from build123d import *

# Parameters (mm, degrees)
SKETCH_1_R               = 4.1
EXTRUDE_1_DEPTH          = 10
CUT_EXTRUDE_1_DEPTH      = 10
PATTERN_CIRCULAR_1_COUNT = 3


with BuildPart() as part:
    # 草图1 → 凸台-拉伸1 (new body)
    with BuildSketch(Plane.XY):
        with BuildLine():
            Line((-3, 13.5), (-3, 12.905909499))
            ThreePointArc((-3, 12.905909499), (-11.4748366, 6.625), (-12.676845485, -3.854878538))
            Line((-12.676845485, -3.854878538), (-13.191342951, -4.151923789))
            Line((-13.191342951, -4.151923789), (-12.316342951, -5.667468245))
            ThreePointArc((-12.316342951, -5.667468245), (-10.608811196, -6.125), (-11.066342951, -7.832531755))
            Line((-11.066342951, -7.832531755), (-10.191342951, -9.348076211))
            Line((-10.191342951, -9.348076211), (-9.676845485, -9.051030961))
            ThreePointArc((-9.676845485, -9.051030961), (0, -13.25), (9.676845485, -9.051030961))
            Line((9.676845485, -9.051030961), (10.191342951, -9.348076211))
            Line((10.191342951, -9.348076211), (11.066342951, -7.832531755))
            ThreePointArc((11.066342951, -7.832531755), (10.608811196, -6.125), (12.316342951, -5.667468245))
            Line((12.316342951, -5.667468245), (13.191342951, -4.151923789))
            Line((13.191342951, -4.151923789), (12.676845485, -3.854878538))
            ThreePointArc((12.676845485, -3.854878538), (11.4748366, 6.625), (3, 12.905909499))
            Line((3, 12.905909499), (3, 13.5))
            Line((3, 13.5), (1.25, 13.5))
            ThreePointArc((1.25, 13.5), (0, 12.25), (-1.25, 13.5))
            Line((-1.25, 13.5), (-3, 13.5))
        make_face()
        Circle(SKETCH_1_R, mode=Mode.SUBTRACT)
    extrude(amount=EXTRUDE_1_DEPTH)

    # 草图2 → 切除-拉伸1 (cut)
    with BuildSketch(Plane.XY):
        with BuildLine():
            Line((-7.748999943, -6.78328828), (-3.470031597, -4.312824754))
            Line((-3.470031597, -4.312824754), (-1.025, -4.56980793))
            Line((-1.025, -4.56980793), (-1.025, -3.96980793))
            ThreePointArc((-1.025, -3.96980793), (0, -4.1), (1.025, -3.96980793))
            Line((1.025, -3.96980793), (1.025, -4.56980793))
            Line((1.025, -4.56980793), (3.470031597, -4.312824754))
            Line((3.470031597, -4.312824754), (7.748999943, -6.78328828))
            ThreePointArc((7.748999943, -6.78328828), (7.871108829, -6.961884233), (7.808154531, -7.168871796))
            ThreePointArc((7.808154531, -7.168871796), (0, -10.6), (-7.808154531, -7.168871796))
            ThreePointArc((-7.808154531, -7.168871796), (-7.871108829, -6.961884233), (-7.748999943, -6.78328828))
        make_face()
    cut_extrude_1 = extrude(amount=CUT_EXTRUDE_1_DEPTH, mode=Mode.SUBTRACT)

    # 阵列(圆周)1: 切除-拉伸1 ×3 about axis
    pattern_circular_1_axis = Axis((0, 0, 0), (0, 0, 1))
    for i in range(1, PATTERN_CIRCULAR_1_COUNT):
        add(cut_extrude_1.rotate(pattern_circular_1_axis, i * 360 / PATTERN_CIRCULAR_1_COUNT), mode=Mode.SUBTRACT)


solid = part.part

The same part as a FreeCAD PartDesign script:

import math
import FreeCAD as App
import Part
import Sketcher
Q = App.Units.Quantity

doc = App.newDocument("Part")
params = doc.addObject("Spreadsheet::Sheet", "Params")
for row, (alias, value) in enumerate([
    ("sketch1_diameter", "8.2 mm"),
    ("sketch1_radius", "13.25 mm"),
    ("sketch1_radius2", "1.25 mm"),
    ("sketch1_length", "1.75 mm"),
    ("pad1_length", "10 mm"),
    ("sketch2_radius", "10.6 mm"),
    ("sketch2_radius2", "4.1 mm"),
    ("sketch2_radius3", "0.25 mm"),
    ("sketch2_height", "0.6 mm"),
    ("pocket1_length", "10 mm"),
], start=1):
    params.set(f"A{row}", alias)
    params.set(f"B{row}", "=" + value)
    params.setAlias(f"B{row}", alias)

body = doc.addObject("PartDesign::Body", "Body")

# Sketch on XY plane
sketch1 = body.newObject("Sketcher::SketchObject", "Sketch")
sketch1.AttachmentSupport = (doc.getObject("XY_Plane"), [""])
sketch1.MapMode = "FlatFace"
sketch1.addGeometry([
    Part.LineSegment(App.Vector(-3, 13.5, 0), App.Vector(-3, 12.9, 0)),  # 0
    Part.ArcOfCircle(Part.Circle(App.Vector(0, 0, 0), App.Vector(0, 0, 1), 13.2), math.radians(103), math.radians(197)),  # 1
    Part.LineSegment(App.Vector(-12.7, -3.9, 0), App.Vector(-13.2, -4.2, 0)),  # 2
    Part.LineSegment(App.Vector(-13.2, -4.2, 0), App.Vector(-12.3, -5.7, 0)),  # 3
    Part.ArcOfCircle(Part.Circle(App.Vector(-11.7, -6.8, 0), App.Vector(0, 0, 1), 1.2), math.radians(-60), math.radians(120)),  # 4
    Part.LineSegment(App.Vector(-11.1, -7.8, 0), App.Vector(-10.2, -9.3, 0)),  # 5
    Part.LineSegment(App.Vector(-10.2, -9.3, 0), App.Vector(-9.7, -9.1, 0)),  # 6
    Part.ArcOfCircle(Part.Circle(App.Vector(0, 0, 0), App.Vector(0, 0, 1), 13.2), math.radians(-137), math.radians(-43)),  # 7
    Part.LineSegment(App.Vector(9.7, -9.1, 0), App.Vector(10.2, -9.3, 0)),  # 8
    Part.LineSegment(App.Vector(10.2, -9.3, 0), App.Vector(11.1, -7.8, 0)),  # 9
    Part.ArcOfCircle(Part.Circle(App.Vector(11.7, -6.8, 0), App.Vector(0, 0, 1), 1.2), math.radians(60), math.radians(240)),  # 10
    Part.LineSegment(App.Vector(12.3, -5.7, 0), App.Vector(13.2, -4.2, 0)),  # 11
    Part.LineSegment(App.Vector(13.2, -4.2, 0), App.Vector(12.7, -3.9, 0)),  # 12
    Part.ArcOfCircle(Part.Circle(App.Vector(0, 0, 0), App.Vector(0, 0, 1), 13.2), math.radians(-17), math.radians(77)),  # 13
    Part.LineSegment(App.Vector(3, 12.9, 0), App.Vector(3, 13.5, 0)),  # 14
    Part.LineSegment(App.Vector(3, 13.5, 0), App.Vector(1.2, 13.5, 0)),  # 15
    Part.ArcOfCircle(Part.Circle(App.Vector(0, 13.5, 0), App.Vector(0, 0, 1), 1.2), math.radians(180), math.radians(360)),  # 16
    Part.LineSegment(App.Vector(-1.2, 13.5, 0), App.Vector(-3, 13.5, 0)),  # 17
    Part.Circle(App.Vector(0, 0, 0), App.Vector(0, 0, 1), 4.1),  # 18
], False)
sketch1.addConstraint([
    Sketcher.Constraint("Coincident", 0, 2, 1, 1),
    Sketcher.Constraint("Coincident", 1, 2, 2, 1),
    Sketcher.Constraint("Coincident", 2, 2, 3, 1),
    Sketcher.Constraint("Coincident", 3, 2, 4, 2),
    Sketcher.Constraint("Coincident", 4, 1, 5, 1),
    Sketcher.Constraint("Coincident", 5, 2, 6, 1),
    Sketcher.Constraint("Coincident", 6, 2, 7, 1),
    Sketcher.Constraint("Coincident", 7, 2, 8, 1),
    Sketcher.Constraint("Coincident", 8, 2, 9, 1),
    Sketcher.Constraint("Coincident", 9, 2, 10, 2),
    Sketcher.Constraint("Coincident", 10, 1, 11, 1),
    Sketcher.Constraint("Coincident", 11, 2, 12, 1),
    Sketcher.Constraint("Coincident", 12, 2, 13, 1),
    Sketcher.Constraint("Coincident", 13, 2, 14, 1),
    Sketcher.Constraint("Coincident", 14, 2, 15, 1),
    Sketcher.Constraint("Coincident", 15, 2, 16, 2),
    Sketcher.Constraint("Coincident", 16, 1, 17, 1),
    Sketcher.Constraint("Coincident", 17, 2, 0, 1),
    Sketcher.Constraint("Vertical", 0),
    Sketcher.Constraint("Vertical", 14),
    Sketcher.Constraint("Horizontal", 15),
    Sketcher.Constraint("Horizontal", 17),
    Sketcher.Constraint("Coincident", 1, 3, -1, 1),
    Sketcher.Constraint("Coincident", 7, 3, -1, 1),
    Sketcher.Constraint("Coincident", 13, 3, -1, 1),
    Sketcher.Constraint("Coincident", 18, 3, -1, 1),
    Sketcher.Constraint("Equal", 1, 7),
    Sketcher.Constraint("Equal", 4, 10),
    Sketcher.Constraint("Equal", 7, 13),
    Sketcher.Constraint("Equal", 10, 16),
    Sketcher.Constraint("Symmetric", 4, 3, 10, 3, -2),
    Sketcher.Constraint("Symmetric", 5, 2, 8, 2, -2),
    Sketcher.Constraint("Symmetric", 2, 2, 11, 2, -2),
    Sketcher.Constraint("Symmetric", 15, 2, 16, 1, -2),
    Sketcher.Constraint("Perpendicular", 2, 3),
    Sketcher.Constraint("Parallel", 3, 5),
    Sketcher.Constraint("Perpendicular", 5, 6),
    Sketcher.Constraint("Perpendicular", 8, 9),
    Sketcher.Constraint("Parallel", 9, 11),
    Sketcher.Constraint("Perpendicular", 11, 12),
    Sketcher.Constraint("Horizontal", 6, 2, 7, 2),
    Sketcher.Constraint("Horizontal", 0, 2, 13, 2),
    Sketcher.Constraint("Horizontal", 16, 3, 14, 2),
    Sketcher.Constraint("Equal", 3, 5),
    Sketcher.Constraint("Equal", 2, 6),
    Sketcher.Constraint("Diameter", 18, 8.2),
    Sketcher.Constraint("Angle", 2, Q("-150 deg")),
    Sketcher.Constraint("Radius", 1, 13.25),
    Sketcher.Constraint("Radius", 4, 1.25),
    Sketcher.Constraint("DistanceX", 0, 2, -1, 1, 3.0),
    Sketcher.Constraint("DistanceX", 2, 2, 5, 2, 3.0),
    Sketcher.Constraint("DistanceY", -1, 1, 16, 3, 13.5),
    Sketcher.Constraint("DistanceX", 2, 2, 4, 3, 1.5),
    Sketcher.Constraint("Distance", 3, 1.75),
    Sketcher.Constraint("DistanceY", 4, 3, -1, 1, 6.75),
])
sketch1.setExpression("Constraints[45]", "Params.sketch1_diameter")
sketch1.setExpression("Constraints[47]", "Params.sketch1_radius")
sketch1.setExpression("Constraints[48]", "Params.sketch1_radius2")
sketch1.setExpression("Constraints[53]", "Params.sketch1_length")
pad1 = body.newObject("PartDesign::Pad", "Pad")
pad1.Profile = sketch1
pad1.setExpression("Length", "Params.pad1_length")

# Sketch on XY plane
sketch2 = body.newObject("Sketcher::SketchObject", "Sketch001")
sketch2.AttachmentSupport = (doc.getObject("XY_Plane"), [""])
sketch2.MapMode = "FlatFace"
sketch2.addGeometry([
    Part.LineSegment(App.Vector(-3.47, -4.31, 0), App.Vector(-7.75, -6.78, 0)),  # 0
    Part.ArcOfCircle(Part.Circle(App.Vector(-7.62, -7, 0), App.Vector(0, 0, 1), 0.25), math.radians(120), math.radians(223)),  # 1
    Part.ArcOfCircle(Part.Circle(App.Vector(0, 0, 0), App.Vector(0, 0, 1), 10.6), math.radians(-137), math.radians(-43)),  # 2
    Part.ArcOfCircle(Part.Circle(App.Vector(7.62, -7, 0), App.Vector(0, 0, 1), 0.25), math.radians(-43), math.radians(60)),  # 3
    Part.LineSegment(App.Vector(7.75, -6.78, 0), App.Vector(3.47, -4.31, 0)),  # 4
    Part.LineSegment(App.Vector(3.47, -4.31, 0), App.Vector(1.02, -4.57, 0)),  # 5
    Part.LineSegment(App.Vector(1.02, -4.57, 0), App.Vector(1.02, -3.97, 0)),  # 6
    Part.ArcOfCircle(Part.Circle(App.Vector(0, 0, 0), App.Vector(0, 0, 1), 4.1), math.radians(-104), math.radians(-76)),  # 7
    Part.LineSegment(App.Vector(-1.02, -3.97, 0), App.Vector(-1.02, -4.57, 0)),  # 8
    Part.LineSegment(App.Vector(-1.02, -4.57, 0), App.Vector(-3.47, -4.31, 0)),  # 9
], False)
sketch2.addConstraint([
    Sketcher.Constraint("Tangent", 0, 2, 1, 1),
    Sketcher.Constraint("Tangent", 1, 2, 2, 1),
    Sketcher.Constraint("Tangent", 2, 2, 3, 1),
    Sketcher.Constraint("Tangent", 3, 2, 4, 1),
    Sketcher.Constraint("Coincident", 4, 2, 5, 1),
    Sketcher.Constraint("Coincident", 5, 2, 6, 1),
    Sketcher.Constraint("Coincident", 6, 2, 7, 2),
    Sketcher.Constraint("Coincident", 7, 1, 8, 1),
    Sketcher.Constraint("Coincident", 8, 2, 9, 1),
    Sketcher.Constraint("Coincident", 9, 2, 0, 1),
    Sketcher.Constraint("Vertical", 6),
    Sketcher.Constraint("Vertical", 8),
    Sketcher.Constraint("Coincident", 2, 3, -1, 1),
    Sketcher.Constraint("Coincident", 7, 3, -1, 1),
    Sketcher.Constraint("Equal", 1, 3),
    Sketcher.Constraint("Symmetric", 0, 2, 3, 2, -2),
    Sketcher.Constraint("Symmetric", 5, 2, 8, 2, -2),
    Sketcher.Constraint("Horizontal", 4, 2, 9, 2),
    Sketcher.Constraint("Radius", 2, 10.6),
    Sketcher.Constraint("Radius", 7, 4.1),
    Sketcher.Constraint("Angle", 0, Q("-150 deg")),
    Sketcher.Constraint("Angle", 5, Q("-174 deg")),
    Sketcher.Constraint("Radius", 1, 0.25),
    Sketcher.Constraint("DistanceY", 6, 1, 6, 2, 0.6),
    Sketcher.Constraint("DistanceX", 7, 1, 6, 2, 2.05),
    Sketcher.Constraint("DistanceX", 1, 3, -1, 1, 7.624),
])
sketch2.setExpression("Constraints[18]", "Params.sketch2_radius")
sketch2.setExpression("Constraints[19]", "Params.sketch2_radius2")
sketch2.setExpression("Constraints[22]", "Params.sketch2_radius3")
sketch2.setExpression("Constraints[23]", "Params.sketch2_height")
pocket1 = body.newObject("PartDesign::Pocket", "Pocket")
pocket1.Profile = sketch2
pocket1.setExpression("Length", "Params.pocket1_length")
pocket1.Reversed = True
doc.recompute()

polarpattern = body.newObject("PartDesign::PolarPattern", "PolarPattern")
polarpattern.Originals = [pocket1]
polarpattern.Axis = (doc.getObject("Z_Axis"), [""])
polarpattern.Angle = 360
polarpattern.Occurrences = 3
body.Tip = polarpattern

doc.recompute()
